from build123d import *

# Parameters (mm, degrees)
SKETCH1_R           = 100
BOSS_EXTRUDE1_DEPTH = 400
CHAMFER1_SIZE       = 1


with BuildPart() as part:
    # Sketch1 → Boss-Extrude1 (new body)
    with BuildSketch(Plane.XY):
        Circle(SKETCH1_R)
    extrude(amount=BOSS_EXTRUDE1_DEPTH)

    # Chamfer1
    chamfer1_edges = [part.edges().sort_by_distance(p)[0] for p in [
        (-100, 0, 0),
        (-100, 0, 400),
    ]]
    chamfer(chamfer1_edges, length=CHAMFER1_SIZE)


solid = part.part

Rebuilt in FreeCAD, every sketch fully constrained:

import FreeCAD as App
import Part
import Sketcher

V = App.Vector
Q = App.Units.Quantity


def edges_at(feature, points):
    """Names of the edges that pass closest to the given points."""
    edges = feature.Shape.Edges
    near = lambda p: min(range(len(edges)), key=lambda i: edges[i].distToShape(Part.Vertex(*p))[0])
    return sorted({f"Edge{near(p) + 1}" for p in points})

doc = App.newDocument("Part")
body = doc.addObject("PartDesign::Body", "Body")

sketch1 = body.newObject("Sketcher::SketchObject", "Sketch")
sketch1.AttachmentSupport = (doc.getObject("XY_Plane"), [""])
sketch1.MapMode = "FlatFace"
sketch1.addGeometry(Part.Circle(V(0, 0, 0), V(0, 0, 1), 100), False)
sketch1.addConstraint([
    Sketcher.Constraint("Coincident", 0, 3, -1, 1),
    Sketcher.Constraint("Diameter", 0, Q("200 mm")),
])
pad1 = body.newObject("PartDesign::Pad", "Pad")
pad1.Profile = sketch1
pad1.Length = 400
doc.recompute()

chamfer = body.newObject("PartDesign::Chamfer", "Chamfer")
chamfer.Base = (pad1, edges_at(pad1, [(-100, 0, 0), (-100, 0, 400)]))
chamfer.Size = 1

doc.recompute()
